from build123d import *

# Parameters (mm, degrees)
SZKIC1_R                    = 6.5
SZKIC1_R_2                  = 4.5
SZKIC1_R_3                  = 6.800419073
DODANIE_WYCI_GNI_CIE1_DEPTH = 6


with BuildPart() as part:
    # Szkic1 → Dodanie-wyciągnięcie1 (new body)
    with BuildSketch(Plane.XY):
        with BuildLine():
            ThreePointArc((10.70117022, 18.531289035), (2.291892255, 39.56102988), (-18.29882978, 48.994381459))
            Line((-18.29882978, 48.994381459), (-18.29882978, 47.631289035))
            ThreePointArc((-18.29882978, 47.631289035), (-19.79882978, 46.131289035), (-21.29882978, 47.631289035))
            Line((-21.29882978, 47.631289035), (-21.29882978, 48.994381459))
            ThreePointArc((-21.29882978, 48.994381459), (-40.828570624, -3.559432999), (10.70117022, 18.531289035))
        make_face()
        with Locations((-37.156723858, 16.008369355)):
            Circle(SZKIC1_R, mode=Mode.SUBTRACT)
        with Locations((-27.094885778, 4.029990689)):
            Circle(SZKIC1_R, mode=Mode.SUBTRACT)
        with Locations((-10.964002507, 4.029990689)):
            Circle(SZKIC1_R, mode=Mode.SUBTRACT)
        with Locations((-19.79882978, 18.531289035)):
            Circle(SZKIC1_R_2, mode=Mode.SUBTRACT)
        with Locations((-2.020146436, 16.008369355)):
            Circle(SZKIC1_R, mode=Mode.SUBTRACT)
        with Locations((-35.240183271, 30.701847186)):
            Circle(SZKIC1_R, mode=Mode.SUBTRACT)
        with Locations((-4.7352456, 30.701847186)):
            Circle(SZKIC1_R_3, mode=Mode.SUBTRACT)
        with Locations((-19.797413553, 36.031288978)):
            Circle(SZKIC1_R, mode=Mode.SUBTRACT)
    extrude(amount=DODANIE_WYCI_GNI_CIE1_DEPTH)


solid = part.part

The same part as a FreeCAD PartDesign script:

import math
import FreeCAD as App
import Part
import Sketcher

doc = App.newDocument("Part")
body = doc.addObject("PartDesign::Body", "Body")

# Sketch on XY plane
sketch1 = body.newObject("Sketcher::SketchObject", "Sketch")
sketch1.AttachmentSupport = (doc.getObject("XY_Plane"), [""])
sketch1.MapMode = "FlatFace"
sketch1.addGeometry([
    Part.ArcOfCircle(Part.Circle(App.Vector(-19.79883, 18.531289, 0), App.Vector(0, 0, 1), 30.5), math.radians(0), math.radians(87.181038)),  # 0
    Part.LineSegment(App.Vector(-18.29883, 48.994381, 0), App.Vector(-18.29883, 47.631289, 0)),  # 1
    Part.ArcOfCircle(Part.Circle(App.Vector(-19.79883, 47.631289, 0), App.Vector(0, 0, 1), 1.5), math.radians(180), math.radians(360)),  # 2
    Part.LineSegment(App.Vector(-21.29883, 47.631289, 0), App.Vector(-21.29883, 48.994381, 0)),  # 3
    Part.ArcOfCircle(Part.Circle(App.Vector(-19.79883, 18.531289, 0), App.Vector(0, 0, 1), 30.5), math.radians(92.818962), math.radians(360)),  # 4
    Part.Circle(App.Vector(-27.094886, 4.029991, 0), App.Vector(0, 0, 1), 6.5),  # 5
    Part.Circle(App.Vector(-37.156724, 16.008369, 0), App.Vector(0, 0, 1), 6.5),  # 6
    Part.Circle(App.Vector(-19.79883, 18.531289, 0), App.Vector(0, 0, 1), 4.5),  # 7
    Part.Circle(App.Vector(-10.964003, 4.029991, 0), App.Vector(0, 0, 1), 6.5),  # 8
    Part.Circle(App.Vector(-2.020146, 16.008369, 0), App.Vector(0, 0, 1), 6.5),  # 9
    Part.Circle(App.Vector(-35.240183, 30.701847, 0), App.Vector(0, 0, 1), 6.5),  # 10
    Part.Circle(App.Vector(-19.797414, 36.031289, 0), App.Vector(0, 0, 1), 6.5),  # 11
    Part.Circle(App.Vector(-4.735246, 30.701847, 0), App.Vector(0, 0, 1), 6.800419),  # 12
], False)
sketch1.addConstraint([
    Sketcher.Constraint("Coincident", 0, 2, 1, 1),
    Sketcher.Constraint("Tangent", 1, 2, 2, 2),
    Sketcher.Constraint("Tangent", 2, 1, 3, 1),
    Sketcher.Constraint("Coincident", 3, 2, 4, 1),
    Sketcher.Constraint("Tangent", 4, 2, 0, 1),
    Sketcher.Constraint("Vertical", 1),
    Sketcher.Constraint("Vertical", 3),
    Sketcher.Constraint("Coincident", 7, 3, 0, 3),
    Sketcher.Constraint("Equal", 0, 4),
    Sketcher.Constraint("Equal", 5, 6),
    Sketcher.Constraint("Equal", 6, 8),
    Sketcher.Constraint("Equal", 8, 9),
    Sketcher.Constraint("Equal", 9, 10),
    Sketcher.Constraint("Equal", 10, 11),
    Sketcher.Constraint("Horizontal", 5, 3, 8, 3),
    Sketcher.Constraint("Horizontal", 6, 3, 9, 3),
    Sketcher.Constraint("Horizontal", 10, 3, 12, 3),
    Sketcher.Constraint("Horizontal", 0, 2, 3, 2),
    Sketcher.Constraint("Horizontal", 7, 3, 4, 2),
    Sketcher.Constraint("Diameter", 5, 13.0),
    Sketcher.Constraint("Diameter", 7, 9.0),
    Sketcher.Constraint("Radius", 0, 30.5),
    Sketcher.Constraint("Radius", 2, 1.5),
    Sketcher.Constraint("DistanceY", 0, 3, 2, 3, 29.1),
    Sketcher.Constraint("DistanceY", 11, 3, 2, 3, 11.6),
    Sketcher.Constraint("Diameter", 12, 13.600838),
    Sketcher.Constraint("DistanceY", 5, 3, 4, 3, 14.501298),
    Sketcher.Constraint("DistanceX", 12, 3, 9, 3, 2.715099),
    Sketcher.Constraint("DistanceX", 0, 3, -1, 1, 19.79883),
    Sketcher.Constraint("DistanceY", -1, 1, 0, 3, 18.531289),
    Sketcher.Constraint("DistanceY", -1, 1, 6, 3, 16.008369),
    Sketcher.Constraint("DistanceX", 6, 3, 5, 3, 10.061838),
    Sketcher.Constraint("DistanceX", 6, 3, 8, 3, 26.192721),
    Sketcher.Constraint("DistanceX", 5, 3, 9, 3, 25.074739),
    Sketcher.Constraint("DistanceX", 6, 3, 10, 3, 1.916541),
    Sketcher.Constraint("DistanceY", 4, 3, 10, 3, 12.170558),
    Sketcher.Constraint("DistanceX", 10, 3, 11, 3, 15.44277),
    Sketcher.Constraint("DistanceX", 5, 3, -1, 1, 27.094886),
])
pad1 = body.newObject("PartDesign::Pad", "Pad")
pad1.Profile = sketch1
pad1.Length = 6

doc.recompute()
